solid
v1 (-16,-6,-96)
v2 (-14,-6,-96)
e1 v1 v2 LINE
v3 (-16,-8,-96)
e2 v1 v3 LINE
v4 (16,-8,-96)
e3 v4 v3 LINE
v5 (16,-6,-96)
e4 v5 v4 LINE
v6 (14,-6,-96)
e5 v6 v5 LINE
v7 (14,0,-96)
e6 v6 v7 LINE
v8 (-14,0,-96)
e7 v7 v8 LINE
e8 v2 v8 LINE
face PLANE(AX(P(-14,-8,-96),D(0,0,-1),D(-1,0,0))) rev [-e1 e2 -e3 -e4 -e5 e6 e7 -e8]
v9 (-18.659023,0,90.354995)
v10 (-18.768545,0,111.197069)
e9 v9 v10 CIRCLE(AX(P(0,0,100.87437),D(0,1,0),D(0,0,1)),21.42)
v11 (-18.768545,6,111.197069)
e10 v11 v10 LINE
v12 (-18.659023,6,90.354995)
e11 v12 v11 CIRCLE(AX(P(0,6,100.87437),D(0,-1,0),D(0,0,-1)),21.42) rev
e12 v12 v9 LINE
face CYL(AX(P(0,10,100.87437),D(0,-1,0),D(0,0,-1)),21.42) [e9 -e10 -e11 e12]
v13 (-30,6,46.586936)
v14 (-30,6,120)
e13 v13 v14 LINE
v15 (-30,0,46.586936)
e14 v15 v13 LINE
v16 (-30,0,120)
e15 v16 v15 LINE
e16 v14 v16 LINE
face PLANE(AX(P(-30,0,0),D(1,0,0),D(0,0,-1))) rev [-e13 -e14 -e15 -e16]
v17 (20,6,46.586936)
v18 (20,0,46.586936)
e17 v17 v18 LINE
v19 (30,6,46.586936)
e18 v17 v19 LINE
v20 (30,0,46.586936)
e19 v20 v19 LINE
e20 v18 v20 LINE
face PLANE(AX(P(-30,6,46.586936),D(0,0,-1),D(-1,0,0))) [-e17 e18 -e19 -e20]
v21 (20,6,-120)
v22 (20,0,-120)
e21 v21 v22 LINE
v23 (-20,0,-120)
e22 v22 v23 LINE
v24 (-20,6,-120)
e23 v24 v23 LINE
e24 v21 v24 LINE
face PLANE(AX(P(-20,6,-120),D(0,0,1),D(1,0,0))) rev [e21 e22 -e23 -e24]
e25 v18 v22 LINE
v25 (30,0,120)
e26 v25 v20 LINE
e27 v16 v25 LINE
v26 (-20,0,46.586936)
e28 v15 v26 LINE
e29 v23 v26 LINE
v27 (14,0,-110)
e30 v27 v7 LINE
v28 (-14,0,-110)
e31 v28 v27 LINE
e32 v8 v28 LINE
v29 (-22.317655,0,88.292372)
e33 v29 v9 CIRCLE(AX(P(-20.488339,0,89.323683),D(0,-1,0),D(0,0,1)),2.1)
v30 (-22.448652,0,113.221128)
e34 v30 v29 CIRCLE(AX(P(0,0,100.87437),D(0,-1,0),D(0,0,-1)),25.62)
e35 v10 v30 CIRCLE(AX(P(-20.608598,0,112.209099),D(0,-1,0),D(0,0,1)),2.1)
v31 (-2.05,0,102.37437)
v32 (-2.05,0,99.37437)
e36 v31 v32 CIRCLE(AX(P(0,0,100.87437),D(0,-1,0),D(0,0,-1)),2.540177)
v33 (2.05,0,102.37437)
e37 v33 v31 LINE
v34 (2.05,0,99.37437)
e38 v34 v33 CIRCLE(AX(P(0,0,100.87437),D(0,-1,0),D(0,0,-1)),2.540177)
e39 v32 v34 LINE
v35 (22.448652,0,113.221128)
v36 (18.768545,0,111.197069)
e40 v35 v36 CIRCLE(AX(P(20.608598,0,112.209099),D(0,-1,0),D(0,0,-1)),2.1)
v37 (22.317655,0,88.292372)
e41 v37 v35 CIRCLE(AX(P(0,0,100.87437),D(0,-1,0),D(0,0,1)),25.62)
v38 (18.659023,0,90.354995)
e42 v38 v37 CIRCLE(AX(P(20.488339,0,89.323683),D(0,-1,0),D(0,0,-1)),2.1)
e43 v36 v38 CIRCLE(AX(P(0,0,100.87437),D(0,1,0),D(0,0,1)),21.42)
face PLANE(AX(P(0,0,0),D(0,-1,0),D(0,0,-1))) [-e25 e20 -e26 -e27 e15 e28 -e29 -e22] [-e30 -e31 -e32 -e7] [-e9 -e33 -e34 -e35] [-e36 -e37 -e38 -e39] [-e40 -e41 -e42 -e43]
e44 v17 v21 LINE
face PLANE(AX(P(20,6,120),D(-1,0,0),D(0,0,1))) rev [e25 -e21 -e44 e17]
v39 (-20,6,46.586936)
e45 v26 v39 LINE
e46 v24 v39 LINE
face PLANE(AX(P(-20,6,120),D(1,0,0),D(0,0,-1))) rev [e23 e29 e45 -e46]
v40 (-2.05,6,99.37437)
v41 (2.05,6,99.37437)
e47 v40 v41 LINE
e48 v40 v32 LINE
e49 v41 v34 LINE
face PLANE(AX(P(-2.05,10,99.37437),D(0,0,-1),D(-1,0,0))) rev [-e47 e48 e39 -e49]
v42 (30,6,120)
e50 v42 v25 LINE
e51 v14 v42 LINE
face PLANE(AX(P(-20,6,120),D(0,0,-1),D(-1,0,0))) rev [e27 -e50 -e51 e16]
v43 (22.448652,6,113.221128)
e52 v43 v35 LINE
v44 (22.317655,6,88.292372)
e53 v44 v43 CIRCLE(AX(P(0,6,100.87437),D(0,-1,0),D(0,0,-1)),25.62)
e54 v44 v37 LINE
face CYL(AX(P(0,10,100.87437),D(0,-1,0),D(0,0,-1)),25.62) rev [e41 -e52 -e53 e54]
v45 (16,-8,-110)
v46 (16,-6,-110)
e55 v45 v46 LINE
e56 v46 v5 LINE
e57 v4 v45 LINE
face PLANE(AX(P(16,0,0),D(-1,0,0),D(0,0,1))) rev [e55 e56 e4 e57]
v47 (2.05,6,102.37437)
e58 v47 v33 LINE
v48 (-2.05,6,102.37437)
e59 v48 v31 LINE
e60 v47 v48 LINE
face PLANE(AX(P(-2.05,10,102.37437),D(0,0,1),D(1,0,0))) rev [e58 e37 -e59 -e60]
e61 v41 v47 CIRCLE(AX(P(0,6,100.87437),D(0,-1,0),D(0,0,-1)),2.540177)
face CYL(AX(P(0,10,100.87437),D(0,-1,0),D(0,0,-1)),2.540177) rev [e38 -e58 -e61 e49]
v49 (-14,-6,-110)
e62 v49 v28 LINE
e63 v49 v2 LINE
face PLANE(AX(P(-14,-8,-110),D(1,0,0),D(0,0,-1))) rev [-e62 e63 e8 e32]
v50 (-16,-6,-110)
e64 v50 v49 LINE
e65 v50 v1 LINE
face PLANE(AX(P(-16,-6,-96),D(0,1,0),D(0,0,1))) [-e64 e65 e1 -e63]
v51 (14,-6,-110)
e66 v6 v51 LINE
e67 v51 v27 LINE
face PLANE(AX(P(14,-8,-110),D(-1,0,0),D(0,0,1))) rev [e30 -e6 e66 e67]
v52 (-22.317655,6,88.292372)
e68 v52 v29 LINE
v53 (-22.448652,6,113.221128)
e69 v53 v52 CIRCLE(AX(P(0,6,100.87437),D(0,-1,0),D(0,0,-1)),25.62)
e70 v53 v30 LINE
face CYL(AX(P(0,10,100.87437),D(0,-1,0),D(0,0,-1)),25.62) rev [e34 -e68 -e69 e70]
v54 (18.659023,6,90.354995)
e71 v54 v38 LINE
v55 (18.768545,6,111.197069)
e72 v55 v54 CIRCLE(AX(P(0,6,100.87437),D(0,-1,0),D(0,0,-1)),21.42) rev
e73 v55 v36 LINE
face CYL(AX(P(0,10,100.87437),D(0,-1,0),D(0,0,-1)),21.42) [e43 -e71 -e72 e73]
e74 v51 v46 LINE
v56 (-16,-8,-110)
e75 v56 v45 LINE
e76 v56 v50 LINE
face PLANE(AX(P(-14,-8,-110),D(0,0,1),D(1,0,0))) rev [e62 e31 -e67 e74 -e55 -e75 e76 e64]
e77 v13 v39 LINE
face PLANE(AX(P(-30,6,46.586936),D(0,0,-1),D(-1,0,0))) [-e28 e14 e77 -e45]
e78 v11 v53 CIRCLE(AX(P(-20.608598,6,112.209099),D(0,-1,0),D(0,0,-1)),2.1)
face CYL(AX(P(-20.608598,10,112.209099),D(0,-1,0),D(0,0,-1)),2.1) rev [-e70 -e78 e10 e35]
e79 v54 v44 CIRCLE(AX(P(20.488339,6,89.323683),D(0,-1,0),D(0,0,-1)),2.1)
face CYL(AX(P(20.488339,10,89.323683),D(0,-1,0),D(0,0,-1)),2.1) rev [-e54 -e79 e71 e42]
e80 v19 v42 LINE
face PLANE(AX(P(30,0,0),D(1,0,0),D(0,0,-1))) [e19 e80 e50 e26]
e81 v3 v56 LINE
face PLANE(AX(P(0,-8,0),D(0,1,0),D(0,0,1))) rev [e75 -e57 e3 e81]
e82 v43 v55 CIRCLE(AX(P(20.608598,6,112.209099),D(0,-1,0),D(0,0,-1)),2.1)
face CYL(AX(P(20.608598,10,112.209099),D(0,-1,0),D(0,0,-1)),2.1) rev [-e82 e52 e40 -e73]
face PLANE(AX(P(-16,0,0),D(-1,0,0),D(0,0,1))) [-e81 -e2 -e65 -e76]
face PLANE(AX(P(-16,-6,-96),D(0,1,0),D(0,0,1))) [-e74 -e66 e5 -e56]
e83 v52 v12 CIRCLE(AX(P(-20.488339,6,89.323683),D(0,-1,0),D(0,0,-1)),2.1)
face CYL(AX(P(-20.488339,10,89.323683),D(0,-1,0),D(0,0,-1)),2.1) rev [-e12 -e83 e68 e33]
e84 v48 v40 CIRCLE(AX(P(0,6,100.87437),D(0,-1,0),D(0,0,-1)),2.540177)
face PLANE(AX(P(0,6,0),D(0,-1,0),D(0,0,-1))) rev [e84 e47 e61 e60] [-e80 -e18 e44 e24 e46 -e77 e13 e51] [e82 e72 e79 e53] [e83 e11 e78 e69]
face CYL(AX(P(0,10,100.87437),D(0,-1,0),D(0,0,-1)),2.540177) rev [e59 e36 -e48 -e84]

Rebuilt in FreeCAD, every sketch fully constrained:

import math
import FreeCAD as App
import Part
import Sketcher

doc = App.newDocument("Part")
body = doc.addObject("PartDesign::Body", "Body")

sketch1 = body.newObject("Sketcher::SketchObject", "Sketch")
sketch1.AttachmentSupport = (doc.getObject("XZ_Plane"), [""])
sketch1.MapMode = "FlatFace"
sketch1.addGeometry(Part.LineSegment(App.Vector(-20, -120, 0), App.Vector(-20, 120, 0)), False)
sketch1.addGeometry(Part.LineSegment(App.Vector(-20, 120, 0), App.Vector(20, 120, 0)), False)
sketch1.addGeometry(Part.LineSegment(App.Vector(20, 120, 0), App.Vector(20, -120, 0)), False)
sketch1.addGeometry(Part.LineSegment(App.Vector(20, -120, 0), App.Vector(-20, -120, 0)), False)
sketch1.addConstraint(Sketcher.Constraint("Coincident", 0, 2, 1, 1))
sketch1.addConstraint(Sketcher.Constraint("Coincident", 1, 2, 2, 1))
sketch1.addConstraint(Sketcher.Constraint("Coincident", 2, 2, 3, 1))
sketch1.addConstraint(Sketcher.Constraint("Coincident", 3, 2, 0, 1))
sketch1.addConstraint(Sketcher.Constraint("Vertical", 0))
sketch1.addConstraint(Sketcher.Constraint("Horizontal", 1))
sketch1.addConstraint(Sketcher.Constraint("Vertical", 2))
sketch1.addConstraint(Sketcher.Constraint("Horizontal", 3))
sketch1.addConstraint(Sketcher.Constraint("Symmetric", 0, 2, 2, 2, -1, 1))
sketch1.addConstraint(Sketcher.Constraint("DistanceX", 1, 1, 1, 2, 40.0))
sketch1.addConstraint(Sketcher.Constraint("DistanceY", 0, 1, 0, 2, 240.0))
pad1 = body.newObject("PartDesign::Pad", "Pad")
pad1.Profile = sketch1
pad1.Length = 6
pad1.Reversed = True

sketch2 = body.newObject("Sketcher::SketchObject", "Sketch001")
sketch2.AttachmentSupport = (doc.getObject("YZ_Plane"), [""])
sketch2.MapMode = "FlatFace"
sketch2.AttachmentOffset = App.Placement(App.Vector(0, 0, 20), App.Rotation())
sketch2.addGeometry(Part.LineSegment(App.Vector(6, 120, 0), App.Vector(0, 120, 0)), False)
sketch2.addGeometry(Part.LineSegment(App.Vector(0, 120, 0), App.Vector(0, 47, 0)), False)
sketch2.addGeometry(Part.LineSegment(App.Vector(0, 47, 0), App.Vector(6, 47, 0)), False)
sketch2.addGeometry(Part.LineSegment(App.Vector(6, 47, 0), App.Vector(6, 120, 0)), False)
sketch2.addConstraint(Sketcher.Constraint("Coincident", 0, 2, 1, 1))
sketch2.addConstraint(Sketcher.Constraint("Coincident", 1, 2, 2, 1))
sketch2.addConstraint(Sketcher.Constraint("Coincident", 2, 2, 3, 1))
sketch2.addConstraint(Sketcher.Constraint("Coincident", 3, 2, 0, 1))
sketch2.addConstraint(Sketcher.Constraint("Horizontal", 0))
sketch2.addConstraint(Sketcher.Constraint("Vertical", 1))
sketch2.addConstraint(Sketcher.Constraint("Horizontal", 2))
sketch2.addConstraint(Sketcher.Constraint("Vertical", 3))
sketch2.addConstraint(Sketcher.Constraint("PointOnObject", 0, 2, -2))
sketch2.addConstraint(Sketcher.Constraint("DistanceX", 0, 2, 0, 1, 6.0))
sketch2.addConstraint(Sketcher.Constraint("DistanceY", -1, 1, 0, 2, 120.0))
sketch2.addConstraint(Sketcher.Constraint("DistanceY", 1, 2, 1, 1, 73.413064))
pad2 = body.newObject("PartDesign::Pad", "Pad001")
pad2.Profile = sketch2
pad2.Type = "TwoLengths"
pad2.Length = 10
pad2.Length2 = 50

sketch3 = body.newObject("Sketcher::SketchObject", "Sketch002")
sketch3.AttachmentSupport = (doc.getObject("XZ_Plane"), [""])
sketch3.MapMode = "FlatFace"
sketch3.addGeometry(Part.LineSegment(App.Vector(-14, -96, 0), App.Vector(-14, -110, 0)), False)
sketch3.addGeometry(Part.LineSegment(App.Vector(-14, -110, 0), App.Vector(14, -110, 0)), False)
sketch3.addGeometry(Part.LineSegment(App.Vector(14, -110, 0), App.Vector(14, -96, 0)), False)
sketch3.addGeometry(Part.LineSegment(App.Vector(14, -96, 0), App.Vector(-14, -96, 0)), False)
sketch3.addConstraint(Sketcher.Constraint("Coincident", 0, 2, 1, 1))
sketch3.addConstraint(Sketcher.Constraint("Coincident", 1, 2, 2, 1))
sketch3.addConstraint(Sketcher.Constraint("Coincident", 2, 2, 3, 1))
sketch3.addConstraint(Sketcher.Constraint("Coincident", 3, 2, 0, 1))
sketch3.addConstraint(Sketcher.Constraint("Vertical", 0))
sketch3.addConstraint(Sketcher.Constraint("Horizontal", 1))
sketch3.addConstraint(Sketcher.Constraint("Vertical", 2))
sketch3.addConstraint(Sketcher.Constraint("Horizontal", 3))
sketch3.addConstraint(Sketcher.Constraint("DistanceX", 1, 1, 1, 2, 28.0))
sketch3.addConstraint(Sketcher.Constraint("DistanceY", 0, 2, 0, 1, 14.0))
sketch3.addConstraint(Sketcher.Constraint("DistanceX", 0, 2, -1, 1, 14.0))
sketch3.addConstraint(Sketcher.Constraint("DistanceY", 0, 2, -1, 1, 110.0))
pad3 = body.newObject("PartDesign::Pad", "Pad002")
pad3.Profile = sketch3
pad3.Length = 8

sketch4 = body.newObject("Sketcher::SketchObject", "Sketch003")
sketch4.AttachmentSupport = (doc.getObject("YZ_Plane"), [""])
sketch4.MapMode = "FlatFace"
sketch4.AttachmentOffset = App.Placement(App.Vector(0, 0, 14), App.Rotation())
sketch4.addGeometry(Part.LineSegment(App.Vector(-6, -96, 0), App.Vector(-8, -96, 0)), False)
sketch4.addGeometry(Part.LineSegment(App.Vector(-8, -96, 0), App.Vector(-8, -110, 0)), False)
sketch4.addGeometry(Part.LineSegment(App.Vector(-8, -110, 0), App.Vector(-6, -110, 0)), False)
sketch4.addGeometry(Part.LineSegment(App.Vector(-6, -110, 0), App.Vector(-6, -96, 0)), False)
sketch4.addConstraint(Sketcher.Constraint("Coincident", 0, 2, 1, 1))
sketch4.addConstraint(Sketcher.Constraint("Coincident", 1, 2, 2, 1))
sketch4.addConstraint(Sketcher.Constraint("Coincident", 2, 2, 3, 1))
sketch4.addConstraint(Sketcher.Constraint("Coincident", 3, 2, 0, 1))
sketch4.addConstraint(Sketcher.Constraint("Horizontal", 0))
sketch4.addConstraint(Sketcher.Constraint("Vertical", 1))
sketch4.addConstraint(Sketcher.Constraint("Horizontal", 2))
sketch4.addConstraint(Sketcher.Constraint("Vertical", 3))
sketch4.addConstraint(Sketcher.Constraint("DistanceX", 0, 2, 0, 1, 2.0))
sketch4.addConstraint(Sketcher.Constraint("DistanceY", 1, 2, 1, 1, 14.0))
sketch4.addConstraint(Sketcher.Constraint("DistanceX", 0, 2, -1, 1, 8.0))
sketch4.addConstraint(Sketcher.Constraint("DistanceY", 0, 2, -1, 1, 96.0))
pad4 = body.newObject("PartDesign::Pad", "Pad003")
pad4.Profile = sketch4
pad4.Type = "TwoLengths"
pad4.Length = 2
pad4.Length2 = 30

sketch5 = body.newObject("Sketcher::SketchObject", "Sketch004")
sketch5.AttachmentSupport = (doc.getObject("XZ_Plane"), [""])
sketch5.MapMode = "FlatFace"
sketch5.addGeometry(Part.LineSegment(App.Vector(-2, 99.4, 0), App.Vector(2, 99.4, 0)), False)
sketch5.addGeometry(Part.ArcOfCircle(Part.Circle(App.Vector(0, 100.9, 0), App.Vector(0, 0, 1), 2.5), math.radians(-36), math.radians(36)), False)
sketch5.addGeometry(Part.LineSegment(App.Vector(2, 102.4, 0), App.Vector(-2, 102.4, 0)), False)
sketch5.addGeometry(Part.ArcOfCircle(Part.Circle(App.Vector(0, 100.9, 0), App.Vector(0, 0, 1), 2.5), math.radians(144), math.radians(216)), False)
sketch5.addGeometry(Part.ArcOfCircle(Part.Circle(App.Vector(0, 100.9, 0), App.Vector(0, 0, 1), 21.4), math.radians(-180), math.radians(-151)), False)
sketch5.addGeometry(Part.ArcOfCircle(Part.Circle(App.Vector(0, 100.9, 0), App.Vector(0, 0, 1), 21.4), math.radians(151), math.radians(180)), False)
sketch5.addGeometry(Part.ArcOfCircle(Part.Circle(App.Vector(-20.6, 112.2, 0), App.Vector(0, 0, 1), 2.1), math.radians(-29), math.radians(151)), False)
sketch5.addGeometry(Part.ArcOfCircle(Part.Circle(App.Vector(0, 100.9, 0), App.Vector(0, 0, 1), 25.6), math.radians(151), math.radians(180)), False)
sketch5.addGeometry(Part.ArcOfCircle(Part.Circle(App.Vector(0, 100.9, 0), App.Vector(0, 0, 1), 25.6), math.radians(180), math.radians(209)), False)
sketch5.addGeometry(Part.ArcOfCircle(Part.Circle(App.Vector(-20.5, 89.3, 0), App.Vector(0, 0, 1), 2.1), math.radians(-151), math.radians(29)), False)
sketch5.addGeometry(Part.ArcOfCircle(Part.Circle(App.Vector(0, 100.9, 0), App.Vector(0, 0, 1), 25.6), math.radians(-29), math.radians(0)), False)
sketch5.addGeometry(Part.ArcOfCircle(Part.Circle(App.Vector(0, 100.9, 0), App.Vector(0, 0, 1), 25.6), math.radians(0), math.radians(29)), False)
sketch5.addGeometry(Part.ArcOfCircle(Part.Circle(App.Vector(20.6, 112.2, 0), App.Vector(0, 0, 1), 2.1), math.radians(29), math.radians(209)), False)
sketch5.addGeometry(Part.ArcOfCircle(Part.Circle(App.Vector(0, 100.9, 0), App.Vector(0, 0, 1), 21.4), math.radians(0), math.radians(29)), False)
sketch5.addGeometry(Part.ArcOfCircle(Part.Circle(App.Vector(0, 100.9, 0), App.Vector(0, 0, 1), 21.4), math.radians(-29), math.radians(0)), False)
sketch5.addGeometry(Part.ArcOfCircle(Part.Circle(App.Vector(20.5, 89.3, 0), App.Vector(0, 0, 1), 2.1), math.radians(151), math.radians(331)), False)
sketch5.addConstraint(Sketcher.Constraint("Coincident", 0, 2, 1, 1))
sketch5.addConstraint(Sketcher.Constraint("Coincident", 1, 2, 2, 1))
sketch5.addConstraint(Sketcher.Constraint("Coincident", 2, 2, 3, 1))
sketch5.addConstraint(Sketcher.Constraint("Coincident", 3, 2, 0, 1))
sketch5.addConstraint(Sketcher.Constraint("Tangent", 4, 1, 5, 2))
sketch5.addConstraint(Sketcher.Constraint("Tangent", 5, 1, 6, 1))
sketch5.addConstraint(Sketcher.Constraint("Tangent", 6, 2, 7, 1))
sketch5.addConstraint(Sketcher.Constraint("Tangent", 7, 2, 8, 1))
sketch5.addConstraint(Sketcher.Constraint("Tangent", 8, 2, 9, 1))
sketch5.addConstraint(Sketcher.Constraint("Tangent", 9, 2, 4, 2))
sketch5.addConstraint(Sketcher.Constraint("Tangent", 10, 2, 11, 1))
sketch5.addConstraint(Sketcher.Constraint("Tangent", 11, 2, 12, 1))
sketch5.addConstraint(Sketcher.Constraint("Tangent", 12, 2, 13, 2))
sketch5.addConstraint(Sketcher.Constraint("Tangent", 13, 1, 14, 2))
sketch5.addConstraint(Sketcher.Constraint("Tangent", 14, 1, 15, 1))
sketch5.addConstraint(Sketcher.Constraint("Tangent", 15, 2, 10, 1))
sketch5.addConstraint(Sketcher.Constraint("Horizontal", 0))
sketch5.addConstraint(Sketcher.Constraint("Horizontal", 2))
sketch5.addConstraint(Sketcher.Constraint("Coincident", 3, 3, 1, 3))
sketch5.addConstraint(Sketcher.Constraint("Coincident", 4, 3, 1, 3))
sketch5.addConstraint(Sketcher.Constraint("Coincident", 7, 3, 1, 3))
sketch5.addConstraint(Sketcher.Constraint("Coincident", 10, 3, 1, 3))
sketch5.addConstraint(Sketcher.Constraint("Coincident", 13, 3, 1, 3))
sketch5.addConstraint(Sketcher.Constraint("Equal", 1, 3))
sketch5.addConstraint(Sketcher.Constraint("Equal", 4, 5))
sketch5.addConstraint(Sketcher.Constraint("Equal", 7, 8))
sketch5.addConstraint(Sketcher.Constraint("Equal", 8, 10))
sketch5.addConstraint(Sketcher.Constraint("Equal", 10, 11))
sketch5.addConstraint(Sketcher.Constraint("Equal", 9, 12))
sketch5.addConstraint(Sketcher.Constraint("Equal", 13, 14))
sketch5.addConstraint(Sketcher.Constraint("Symmetric", 6, 3, 12, 3, -2))
sketch5.addConstraint(Sketcher.Constraint("Horizontal", 9, 3, 15, 3))
sketch5.addConstraint(Sketcher.Constraint("Horizontal", 14, 3, 4, 1))
sketch5.addConstraint(Sketcher.Constraint("Horizontal", 4, 1, 7, 2))
sketch5.addConstraint(Sketcher.Constraint("Horizontal", 7, 2, 10, 2))
sketch5.addConstraint(Sketcher.Constraint("Horizontal", 10, 2, 13, 1))
sketch5.addConstraint(Sketcher.Constraint("Vertical", 0, 2, 1, 2))
sketch5.addConstraint(Sketcher.Constraint("Radius", 6, 2.1))
sketch5.addConstraint(Sketcher.Constraint("Radius", 4, 21.42))
sketch5.addConstraint(Sketcher.Constraint("DistanceX", 0, 1, 0, 2, 4.1))
sketch5.addConstraint(Sketcher.Constraint("DistanceY", 0, 2, 10, 3, 1.5))
sketch5.addConstraint(Sketcher.Constraint("DistanceX", 6, 3, -1, 1, 20.608598))
sketch5.addConstraint(Sketcher.Constraint("DistanceY", -1, 1, 6, 3, 112.209099))
sketch5.addConstraint(Sketcher.Constraint("DistanceX", 9, 3, -1, 1, 20.488339))
pocket1 = body.newObject("PartDesign::Pocket", "Pocket")
pocket1.Profile = sketch5
pocket1.Length = 10

doc.recompute()
